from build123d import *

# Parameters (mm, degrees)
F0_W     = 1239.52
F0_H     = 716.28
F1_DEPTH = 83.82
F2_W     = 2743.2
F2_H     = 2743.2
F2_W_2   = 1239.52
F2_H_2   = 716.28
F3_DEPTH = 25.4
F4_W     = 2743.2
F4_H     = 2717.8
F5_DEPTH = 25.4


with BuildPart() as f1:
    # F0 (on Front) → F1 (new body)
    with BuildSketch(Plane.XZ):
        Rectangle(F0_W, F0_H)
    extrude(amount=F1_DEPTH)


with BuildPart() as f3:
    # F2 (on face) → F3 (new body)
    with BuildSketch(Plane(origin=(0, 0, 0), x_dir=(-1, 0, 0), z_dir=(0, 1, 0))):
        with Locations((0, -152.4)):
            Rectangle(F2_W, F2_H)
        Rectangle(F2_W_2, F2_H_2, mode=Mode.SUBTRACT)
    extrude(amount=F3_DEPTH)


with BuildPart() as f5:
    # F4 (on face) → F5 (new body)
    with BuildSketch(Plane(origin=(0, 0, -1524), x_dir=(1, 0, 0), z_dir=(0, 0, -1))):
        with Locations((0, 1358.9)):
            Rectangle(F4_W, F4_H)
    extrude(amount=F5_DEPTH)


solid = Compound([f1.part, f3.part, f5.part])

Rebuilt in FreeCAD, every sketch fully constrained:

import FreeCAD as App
import Part
import Sketcher
Q = App.Units.Quantity


def add_polygon(sketch, points):
    """Adds a closed chain of lines whose ends are joined by coincident constraints."""
    first, n = sketch.GeometryCount, len(points)
    for a, b in zip(points, points[1:] + points[:1]):
        sketch.addGeometry(Part.LineSegment(App.Vector(*a, 0), App.Vector(*b, 0)), False)
    for i in range(n):
        sketch.addConstraint(Sketcher.Constraint("Coincident", first + i, 2, first + (i + 1) % n, 1))

doc = App.newDocument("Part")
params = doc.addObject("Spreadsheet::Sheet", "Params")
for row, (alias, value) in enumerate([
    ("sketch1_width", "48.8 in"),
    ("sketch1_height", "28.2 in"),
    ("pad1_length", "3.3 in"),
    ("sketch2_width", "108 in"),
    ("sketch2_width2", "48.8 in"),
    ("sketch2_height", "28.2 in"),
    ("pad2_length", "1 in"),
    ("sketch3_width", "108 in"),
    ("sketch3_height", "107 in"),
    ("pad3_length", "1 in"),
], start=1):
    params.set(f"A{row}", alias)
    params.set(f"B{row}", "=" + value)
    params.setAlias(f"B{row}", alias)

body = doc.addObject("PartDesign::Body", "Body")

sketch1 = body.newObject("Sketcher::SketchObject", "Sketch")
sketch1.AttachmentSupport = (doc.getObject("XZ_Plane"), [""])
sketch1.MapMode = "FlatFace"
add_polygon(sketch1, [(-620, 358), (-620, -358), (620, -358), (620, 358)])
sketch1.addConstraint(Sketcher.Constraint("Vertical", 0))
sketch1.addConstraint(Sketcher.Constraint("Horizontal", 1))
sketch1.addConstraint(Sketcher.Constraint("Vertical", 2))
sketch1.addConstraint(Sketcher.Constraint("Horizontal", 3))
sketch1.addConstraint(Sketcher.Constraint("Symmetric", 0, 2, 2, 2, -1, 1))
sketch1.addConstraint(Sketcher.Constraint("DistanceX", 1, 1, 1, 2, Q("48.8 in")))
sketch1.addConstraint(Sketcher.Constraint("DistanceY", 0, 2, 0, 1, Q("28.2 in")))
sketch1.setExpression("Constraints[9]", "Params.sketch1_width")
sketch1.setExpression("Constraints[10]", "Params.sketch1_height")
pad1 = body.newObject("PartDesign::Pad", "Pad")
pad1.Profile = sketch1
pad1.setExpression("Length", "Params.pad1_length")
body2 = doc.addObject("PartDesign::Body", "Body001")

sketch2 = body2.newObject("Sketcher::SketchObject", "Sketch001")
sketch2.AttachmentSupport = (doc.getObject("XZ_Plane001"), [""])
sketch2.MapMode = "FlatFace"
add_polygon(sketch2, [(1372, 1219), (1372, -1524), (-1372, -1524), (-1372, 1219)])
add_polygon(sketch2, [(-620, -358), (620, -358), (620, 358), (-620, 358)])
sketch2.addConstraint(Sketcher.Constraint("Vertical", 0))
sketch2.addConstraint(Sketcher.Constraint("Horizontal", 1))
sketch2.addConstraint(Sketcher.Constraint("Vertical", 2))
sketch2.addConstraint(Sketcher.Constraint("Horizontal", 3))
sketch2.addConstraint(Sketcher.Constraint("Horizontal", 4))
sketch2.addConstraint(Sketcher.Constraint("Vertical", 5))
sketch2.addConstraint(Sketcher.Constraint("Horizontal", 6))
sketch2.addConstraint(Sketcher.Constraint("Vertical", 7))
sketch2.addConstraint(Sketcher.Constraint("Symmetric", 4, 2, 6, 2, -1, 1))
sketch2.addConstraint(Sketcher.Constraint("Equal", 3, 0))
sketch2.addConstraint(Sketcher.Constraint("DistanceX", 1, 2, 1, 1, Q("108 in")))
sketch2.addConstraint(Sketcher.Constraint("DistanceX", 4, 1, 4, 2, Q("48.8 in")))
sketch2.addConstraint(Sketcher.Constraint("DistanceY", 5, 1, 5, 2, Q("28.2 in")))
sketch2.addConstraint(Sketcher.Constraint("DistanceX", -1, 1, 0, 2, Q("54 in")))
sketch2.addConstraint(Sketcher.Constraint("DistanceY", 0, 2, -1, 1, Q("60 in")))
sketch2.setExpression("Constraints[18]", "Params.sketch2_width")
sketch2.setExpression("Constraints[19]", "Params.sketch2_width2")
sketch2.setExpression("Constraints[20]", "Params.sketch2_height")
pad2 = body2.newObject("PartDesign::Pad", "Pad001")
pad2.Profile = sketch2
pad2.setExpression("Length", "Params.pad2_length")
pad2.Reversed = True
body3 = doc.addObject("PartDesign::Body", "Body002")

sketch3 = body3.newObject("Sketcher::SketchObject", "Sketch002")
sketch3.AttachmentSupport = (doc.getObject("XY_Plane002"), [""])
sketch3.MapMode = "FlatFace"
sketch3.AttachmentOffset = App.Placement(App.Vector(0, 0, -60 * 25.4), App.Rotation())
add_polygon(sketch3, [(-1372, -2718), (-1372, 0), (1372, 0), (1372, -2718)])
sketch3.addConstraint(Sketcher.Constraint("Vertical", 0))
sketch3.addConstraint(Sketcher.Constraint("Horizontal", 1))
sketch3.addConstraint(Sketcher.Constraint("Vertical", 2))
sketch3.addConstraint(Sketcher.Constraint("Horizontal", 3))
sketch3.addConstraint(Sketcher.Constraint("Symmetric", 0, 2, 1, 2, -1, 1))
sketch3.addConstraint(Sketcher.Constraint("DistanceX", 1, 1, 1, 2, Q("108 in")))
sketch3.addConstraint(Sketcher.Constraint("DistanceY", 0, 1, 0, 2, Q("107 in")))
sketch3.setExpression("Constraints[9]", "Params.sketch3_width")
sketch3.setExpression("Constraints[10]", "Params.sketch3_height")
pad3 = body3.newObject("PartDesign::Pad", "Pad002")
pad3.Profile = sketch3
pad3.setExpression("Length", "Params.pad3_length")
pad3.Reversed = True

doc.recompute()
